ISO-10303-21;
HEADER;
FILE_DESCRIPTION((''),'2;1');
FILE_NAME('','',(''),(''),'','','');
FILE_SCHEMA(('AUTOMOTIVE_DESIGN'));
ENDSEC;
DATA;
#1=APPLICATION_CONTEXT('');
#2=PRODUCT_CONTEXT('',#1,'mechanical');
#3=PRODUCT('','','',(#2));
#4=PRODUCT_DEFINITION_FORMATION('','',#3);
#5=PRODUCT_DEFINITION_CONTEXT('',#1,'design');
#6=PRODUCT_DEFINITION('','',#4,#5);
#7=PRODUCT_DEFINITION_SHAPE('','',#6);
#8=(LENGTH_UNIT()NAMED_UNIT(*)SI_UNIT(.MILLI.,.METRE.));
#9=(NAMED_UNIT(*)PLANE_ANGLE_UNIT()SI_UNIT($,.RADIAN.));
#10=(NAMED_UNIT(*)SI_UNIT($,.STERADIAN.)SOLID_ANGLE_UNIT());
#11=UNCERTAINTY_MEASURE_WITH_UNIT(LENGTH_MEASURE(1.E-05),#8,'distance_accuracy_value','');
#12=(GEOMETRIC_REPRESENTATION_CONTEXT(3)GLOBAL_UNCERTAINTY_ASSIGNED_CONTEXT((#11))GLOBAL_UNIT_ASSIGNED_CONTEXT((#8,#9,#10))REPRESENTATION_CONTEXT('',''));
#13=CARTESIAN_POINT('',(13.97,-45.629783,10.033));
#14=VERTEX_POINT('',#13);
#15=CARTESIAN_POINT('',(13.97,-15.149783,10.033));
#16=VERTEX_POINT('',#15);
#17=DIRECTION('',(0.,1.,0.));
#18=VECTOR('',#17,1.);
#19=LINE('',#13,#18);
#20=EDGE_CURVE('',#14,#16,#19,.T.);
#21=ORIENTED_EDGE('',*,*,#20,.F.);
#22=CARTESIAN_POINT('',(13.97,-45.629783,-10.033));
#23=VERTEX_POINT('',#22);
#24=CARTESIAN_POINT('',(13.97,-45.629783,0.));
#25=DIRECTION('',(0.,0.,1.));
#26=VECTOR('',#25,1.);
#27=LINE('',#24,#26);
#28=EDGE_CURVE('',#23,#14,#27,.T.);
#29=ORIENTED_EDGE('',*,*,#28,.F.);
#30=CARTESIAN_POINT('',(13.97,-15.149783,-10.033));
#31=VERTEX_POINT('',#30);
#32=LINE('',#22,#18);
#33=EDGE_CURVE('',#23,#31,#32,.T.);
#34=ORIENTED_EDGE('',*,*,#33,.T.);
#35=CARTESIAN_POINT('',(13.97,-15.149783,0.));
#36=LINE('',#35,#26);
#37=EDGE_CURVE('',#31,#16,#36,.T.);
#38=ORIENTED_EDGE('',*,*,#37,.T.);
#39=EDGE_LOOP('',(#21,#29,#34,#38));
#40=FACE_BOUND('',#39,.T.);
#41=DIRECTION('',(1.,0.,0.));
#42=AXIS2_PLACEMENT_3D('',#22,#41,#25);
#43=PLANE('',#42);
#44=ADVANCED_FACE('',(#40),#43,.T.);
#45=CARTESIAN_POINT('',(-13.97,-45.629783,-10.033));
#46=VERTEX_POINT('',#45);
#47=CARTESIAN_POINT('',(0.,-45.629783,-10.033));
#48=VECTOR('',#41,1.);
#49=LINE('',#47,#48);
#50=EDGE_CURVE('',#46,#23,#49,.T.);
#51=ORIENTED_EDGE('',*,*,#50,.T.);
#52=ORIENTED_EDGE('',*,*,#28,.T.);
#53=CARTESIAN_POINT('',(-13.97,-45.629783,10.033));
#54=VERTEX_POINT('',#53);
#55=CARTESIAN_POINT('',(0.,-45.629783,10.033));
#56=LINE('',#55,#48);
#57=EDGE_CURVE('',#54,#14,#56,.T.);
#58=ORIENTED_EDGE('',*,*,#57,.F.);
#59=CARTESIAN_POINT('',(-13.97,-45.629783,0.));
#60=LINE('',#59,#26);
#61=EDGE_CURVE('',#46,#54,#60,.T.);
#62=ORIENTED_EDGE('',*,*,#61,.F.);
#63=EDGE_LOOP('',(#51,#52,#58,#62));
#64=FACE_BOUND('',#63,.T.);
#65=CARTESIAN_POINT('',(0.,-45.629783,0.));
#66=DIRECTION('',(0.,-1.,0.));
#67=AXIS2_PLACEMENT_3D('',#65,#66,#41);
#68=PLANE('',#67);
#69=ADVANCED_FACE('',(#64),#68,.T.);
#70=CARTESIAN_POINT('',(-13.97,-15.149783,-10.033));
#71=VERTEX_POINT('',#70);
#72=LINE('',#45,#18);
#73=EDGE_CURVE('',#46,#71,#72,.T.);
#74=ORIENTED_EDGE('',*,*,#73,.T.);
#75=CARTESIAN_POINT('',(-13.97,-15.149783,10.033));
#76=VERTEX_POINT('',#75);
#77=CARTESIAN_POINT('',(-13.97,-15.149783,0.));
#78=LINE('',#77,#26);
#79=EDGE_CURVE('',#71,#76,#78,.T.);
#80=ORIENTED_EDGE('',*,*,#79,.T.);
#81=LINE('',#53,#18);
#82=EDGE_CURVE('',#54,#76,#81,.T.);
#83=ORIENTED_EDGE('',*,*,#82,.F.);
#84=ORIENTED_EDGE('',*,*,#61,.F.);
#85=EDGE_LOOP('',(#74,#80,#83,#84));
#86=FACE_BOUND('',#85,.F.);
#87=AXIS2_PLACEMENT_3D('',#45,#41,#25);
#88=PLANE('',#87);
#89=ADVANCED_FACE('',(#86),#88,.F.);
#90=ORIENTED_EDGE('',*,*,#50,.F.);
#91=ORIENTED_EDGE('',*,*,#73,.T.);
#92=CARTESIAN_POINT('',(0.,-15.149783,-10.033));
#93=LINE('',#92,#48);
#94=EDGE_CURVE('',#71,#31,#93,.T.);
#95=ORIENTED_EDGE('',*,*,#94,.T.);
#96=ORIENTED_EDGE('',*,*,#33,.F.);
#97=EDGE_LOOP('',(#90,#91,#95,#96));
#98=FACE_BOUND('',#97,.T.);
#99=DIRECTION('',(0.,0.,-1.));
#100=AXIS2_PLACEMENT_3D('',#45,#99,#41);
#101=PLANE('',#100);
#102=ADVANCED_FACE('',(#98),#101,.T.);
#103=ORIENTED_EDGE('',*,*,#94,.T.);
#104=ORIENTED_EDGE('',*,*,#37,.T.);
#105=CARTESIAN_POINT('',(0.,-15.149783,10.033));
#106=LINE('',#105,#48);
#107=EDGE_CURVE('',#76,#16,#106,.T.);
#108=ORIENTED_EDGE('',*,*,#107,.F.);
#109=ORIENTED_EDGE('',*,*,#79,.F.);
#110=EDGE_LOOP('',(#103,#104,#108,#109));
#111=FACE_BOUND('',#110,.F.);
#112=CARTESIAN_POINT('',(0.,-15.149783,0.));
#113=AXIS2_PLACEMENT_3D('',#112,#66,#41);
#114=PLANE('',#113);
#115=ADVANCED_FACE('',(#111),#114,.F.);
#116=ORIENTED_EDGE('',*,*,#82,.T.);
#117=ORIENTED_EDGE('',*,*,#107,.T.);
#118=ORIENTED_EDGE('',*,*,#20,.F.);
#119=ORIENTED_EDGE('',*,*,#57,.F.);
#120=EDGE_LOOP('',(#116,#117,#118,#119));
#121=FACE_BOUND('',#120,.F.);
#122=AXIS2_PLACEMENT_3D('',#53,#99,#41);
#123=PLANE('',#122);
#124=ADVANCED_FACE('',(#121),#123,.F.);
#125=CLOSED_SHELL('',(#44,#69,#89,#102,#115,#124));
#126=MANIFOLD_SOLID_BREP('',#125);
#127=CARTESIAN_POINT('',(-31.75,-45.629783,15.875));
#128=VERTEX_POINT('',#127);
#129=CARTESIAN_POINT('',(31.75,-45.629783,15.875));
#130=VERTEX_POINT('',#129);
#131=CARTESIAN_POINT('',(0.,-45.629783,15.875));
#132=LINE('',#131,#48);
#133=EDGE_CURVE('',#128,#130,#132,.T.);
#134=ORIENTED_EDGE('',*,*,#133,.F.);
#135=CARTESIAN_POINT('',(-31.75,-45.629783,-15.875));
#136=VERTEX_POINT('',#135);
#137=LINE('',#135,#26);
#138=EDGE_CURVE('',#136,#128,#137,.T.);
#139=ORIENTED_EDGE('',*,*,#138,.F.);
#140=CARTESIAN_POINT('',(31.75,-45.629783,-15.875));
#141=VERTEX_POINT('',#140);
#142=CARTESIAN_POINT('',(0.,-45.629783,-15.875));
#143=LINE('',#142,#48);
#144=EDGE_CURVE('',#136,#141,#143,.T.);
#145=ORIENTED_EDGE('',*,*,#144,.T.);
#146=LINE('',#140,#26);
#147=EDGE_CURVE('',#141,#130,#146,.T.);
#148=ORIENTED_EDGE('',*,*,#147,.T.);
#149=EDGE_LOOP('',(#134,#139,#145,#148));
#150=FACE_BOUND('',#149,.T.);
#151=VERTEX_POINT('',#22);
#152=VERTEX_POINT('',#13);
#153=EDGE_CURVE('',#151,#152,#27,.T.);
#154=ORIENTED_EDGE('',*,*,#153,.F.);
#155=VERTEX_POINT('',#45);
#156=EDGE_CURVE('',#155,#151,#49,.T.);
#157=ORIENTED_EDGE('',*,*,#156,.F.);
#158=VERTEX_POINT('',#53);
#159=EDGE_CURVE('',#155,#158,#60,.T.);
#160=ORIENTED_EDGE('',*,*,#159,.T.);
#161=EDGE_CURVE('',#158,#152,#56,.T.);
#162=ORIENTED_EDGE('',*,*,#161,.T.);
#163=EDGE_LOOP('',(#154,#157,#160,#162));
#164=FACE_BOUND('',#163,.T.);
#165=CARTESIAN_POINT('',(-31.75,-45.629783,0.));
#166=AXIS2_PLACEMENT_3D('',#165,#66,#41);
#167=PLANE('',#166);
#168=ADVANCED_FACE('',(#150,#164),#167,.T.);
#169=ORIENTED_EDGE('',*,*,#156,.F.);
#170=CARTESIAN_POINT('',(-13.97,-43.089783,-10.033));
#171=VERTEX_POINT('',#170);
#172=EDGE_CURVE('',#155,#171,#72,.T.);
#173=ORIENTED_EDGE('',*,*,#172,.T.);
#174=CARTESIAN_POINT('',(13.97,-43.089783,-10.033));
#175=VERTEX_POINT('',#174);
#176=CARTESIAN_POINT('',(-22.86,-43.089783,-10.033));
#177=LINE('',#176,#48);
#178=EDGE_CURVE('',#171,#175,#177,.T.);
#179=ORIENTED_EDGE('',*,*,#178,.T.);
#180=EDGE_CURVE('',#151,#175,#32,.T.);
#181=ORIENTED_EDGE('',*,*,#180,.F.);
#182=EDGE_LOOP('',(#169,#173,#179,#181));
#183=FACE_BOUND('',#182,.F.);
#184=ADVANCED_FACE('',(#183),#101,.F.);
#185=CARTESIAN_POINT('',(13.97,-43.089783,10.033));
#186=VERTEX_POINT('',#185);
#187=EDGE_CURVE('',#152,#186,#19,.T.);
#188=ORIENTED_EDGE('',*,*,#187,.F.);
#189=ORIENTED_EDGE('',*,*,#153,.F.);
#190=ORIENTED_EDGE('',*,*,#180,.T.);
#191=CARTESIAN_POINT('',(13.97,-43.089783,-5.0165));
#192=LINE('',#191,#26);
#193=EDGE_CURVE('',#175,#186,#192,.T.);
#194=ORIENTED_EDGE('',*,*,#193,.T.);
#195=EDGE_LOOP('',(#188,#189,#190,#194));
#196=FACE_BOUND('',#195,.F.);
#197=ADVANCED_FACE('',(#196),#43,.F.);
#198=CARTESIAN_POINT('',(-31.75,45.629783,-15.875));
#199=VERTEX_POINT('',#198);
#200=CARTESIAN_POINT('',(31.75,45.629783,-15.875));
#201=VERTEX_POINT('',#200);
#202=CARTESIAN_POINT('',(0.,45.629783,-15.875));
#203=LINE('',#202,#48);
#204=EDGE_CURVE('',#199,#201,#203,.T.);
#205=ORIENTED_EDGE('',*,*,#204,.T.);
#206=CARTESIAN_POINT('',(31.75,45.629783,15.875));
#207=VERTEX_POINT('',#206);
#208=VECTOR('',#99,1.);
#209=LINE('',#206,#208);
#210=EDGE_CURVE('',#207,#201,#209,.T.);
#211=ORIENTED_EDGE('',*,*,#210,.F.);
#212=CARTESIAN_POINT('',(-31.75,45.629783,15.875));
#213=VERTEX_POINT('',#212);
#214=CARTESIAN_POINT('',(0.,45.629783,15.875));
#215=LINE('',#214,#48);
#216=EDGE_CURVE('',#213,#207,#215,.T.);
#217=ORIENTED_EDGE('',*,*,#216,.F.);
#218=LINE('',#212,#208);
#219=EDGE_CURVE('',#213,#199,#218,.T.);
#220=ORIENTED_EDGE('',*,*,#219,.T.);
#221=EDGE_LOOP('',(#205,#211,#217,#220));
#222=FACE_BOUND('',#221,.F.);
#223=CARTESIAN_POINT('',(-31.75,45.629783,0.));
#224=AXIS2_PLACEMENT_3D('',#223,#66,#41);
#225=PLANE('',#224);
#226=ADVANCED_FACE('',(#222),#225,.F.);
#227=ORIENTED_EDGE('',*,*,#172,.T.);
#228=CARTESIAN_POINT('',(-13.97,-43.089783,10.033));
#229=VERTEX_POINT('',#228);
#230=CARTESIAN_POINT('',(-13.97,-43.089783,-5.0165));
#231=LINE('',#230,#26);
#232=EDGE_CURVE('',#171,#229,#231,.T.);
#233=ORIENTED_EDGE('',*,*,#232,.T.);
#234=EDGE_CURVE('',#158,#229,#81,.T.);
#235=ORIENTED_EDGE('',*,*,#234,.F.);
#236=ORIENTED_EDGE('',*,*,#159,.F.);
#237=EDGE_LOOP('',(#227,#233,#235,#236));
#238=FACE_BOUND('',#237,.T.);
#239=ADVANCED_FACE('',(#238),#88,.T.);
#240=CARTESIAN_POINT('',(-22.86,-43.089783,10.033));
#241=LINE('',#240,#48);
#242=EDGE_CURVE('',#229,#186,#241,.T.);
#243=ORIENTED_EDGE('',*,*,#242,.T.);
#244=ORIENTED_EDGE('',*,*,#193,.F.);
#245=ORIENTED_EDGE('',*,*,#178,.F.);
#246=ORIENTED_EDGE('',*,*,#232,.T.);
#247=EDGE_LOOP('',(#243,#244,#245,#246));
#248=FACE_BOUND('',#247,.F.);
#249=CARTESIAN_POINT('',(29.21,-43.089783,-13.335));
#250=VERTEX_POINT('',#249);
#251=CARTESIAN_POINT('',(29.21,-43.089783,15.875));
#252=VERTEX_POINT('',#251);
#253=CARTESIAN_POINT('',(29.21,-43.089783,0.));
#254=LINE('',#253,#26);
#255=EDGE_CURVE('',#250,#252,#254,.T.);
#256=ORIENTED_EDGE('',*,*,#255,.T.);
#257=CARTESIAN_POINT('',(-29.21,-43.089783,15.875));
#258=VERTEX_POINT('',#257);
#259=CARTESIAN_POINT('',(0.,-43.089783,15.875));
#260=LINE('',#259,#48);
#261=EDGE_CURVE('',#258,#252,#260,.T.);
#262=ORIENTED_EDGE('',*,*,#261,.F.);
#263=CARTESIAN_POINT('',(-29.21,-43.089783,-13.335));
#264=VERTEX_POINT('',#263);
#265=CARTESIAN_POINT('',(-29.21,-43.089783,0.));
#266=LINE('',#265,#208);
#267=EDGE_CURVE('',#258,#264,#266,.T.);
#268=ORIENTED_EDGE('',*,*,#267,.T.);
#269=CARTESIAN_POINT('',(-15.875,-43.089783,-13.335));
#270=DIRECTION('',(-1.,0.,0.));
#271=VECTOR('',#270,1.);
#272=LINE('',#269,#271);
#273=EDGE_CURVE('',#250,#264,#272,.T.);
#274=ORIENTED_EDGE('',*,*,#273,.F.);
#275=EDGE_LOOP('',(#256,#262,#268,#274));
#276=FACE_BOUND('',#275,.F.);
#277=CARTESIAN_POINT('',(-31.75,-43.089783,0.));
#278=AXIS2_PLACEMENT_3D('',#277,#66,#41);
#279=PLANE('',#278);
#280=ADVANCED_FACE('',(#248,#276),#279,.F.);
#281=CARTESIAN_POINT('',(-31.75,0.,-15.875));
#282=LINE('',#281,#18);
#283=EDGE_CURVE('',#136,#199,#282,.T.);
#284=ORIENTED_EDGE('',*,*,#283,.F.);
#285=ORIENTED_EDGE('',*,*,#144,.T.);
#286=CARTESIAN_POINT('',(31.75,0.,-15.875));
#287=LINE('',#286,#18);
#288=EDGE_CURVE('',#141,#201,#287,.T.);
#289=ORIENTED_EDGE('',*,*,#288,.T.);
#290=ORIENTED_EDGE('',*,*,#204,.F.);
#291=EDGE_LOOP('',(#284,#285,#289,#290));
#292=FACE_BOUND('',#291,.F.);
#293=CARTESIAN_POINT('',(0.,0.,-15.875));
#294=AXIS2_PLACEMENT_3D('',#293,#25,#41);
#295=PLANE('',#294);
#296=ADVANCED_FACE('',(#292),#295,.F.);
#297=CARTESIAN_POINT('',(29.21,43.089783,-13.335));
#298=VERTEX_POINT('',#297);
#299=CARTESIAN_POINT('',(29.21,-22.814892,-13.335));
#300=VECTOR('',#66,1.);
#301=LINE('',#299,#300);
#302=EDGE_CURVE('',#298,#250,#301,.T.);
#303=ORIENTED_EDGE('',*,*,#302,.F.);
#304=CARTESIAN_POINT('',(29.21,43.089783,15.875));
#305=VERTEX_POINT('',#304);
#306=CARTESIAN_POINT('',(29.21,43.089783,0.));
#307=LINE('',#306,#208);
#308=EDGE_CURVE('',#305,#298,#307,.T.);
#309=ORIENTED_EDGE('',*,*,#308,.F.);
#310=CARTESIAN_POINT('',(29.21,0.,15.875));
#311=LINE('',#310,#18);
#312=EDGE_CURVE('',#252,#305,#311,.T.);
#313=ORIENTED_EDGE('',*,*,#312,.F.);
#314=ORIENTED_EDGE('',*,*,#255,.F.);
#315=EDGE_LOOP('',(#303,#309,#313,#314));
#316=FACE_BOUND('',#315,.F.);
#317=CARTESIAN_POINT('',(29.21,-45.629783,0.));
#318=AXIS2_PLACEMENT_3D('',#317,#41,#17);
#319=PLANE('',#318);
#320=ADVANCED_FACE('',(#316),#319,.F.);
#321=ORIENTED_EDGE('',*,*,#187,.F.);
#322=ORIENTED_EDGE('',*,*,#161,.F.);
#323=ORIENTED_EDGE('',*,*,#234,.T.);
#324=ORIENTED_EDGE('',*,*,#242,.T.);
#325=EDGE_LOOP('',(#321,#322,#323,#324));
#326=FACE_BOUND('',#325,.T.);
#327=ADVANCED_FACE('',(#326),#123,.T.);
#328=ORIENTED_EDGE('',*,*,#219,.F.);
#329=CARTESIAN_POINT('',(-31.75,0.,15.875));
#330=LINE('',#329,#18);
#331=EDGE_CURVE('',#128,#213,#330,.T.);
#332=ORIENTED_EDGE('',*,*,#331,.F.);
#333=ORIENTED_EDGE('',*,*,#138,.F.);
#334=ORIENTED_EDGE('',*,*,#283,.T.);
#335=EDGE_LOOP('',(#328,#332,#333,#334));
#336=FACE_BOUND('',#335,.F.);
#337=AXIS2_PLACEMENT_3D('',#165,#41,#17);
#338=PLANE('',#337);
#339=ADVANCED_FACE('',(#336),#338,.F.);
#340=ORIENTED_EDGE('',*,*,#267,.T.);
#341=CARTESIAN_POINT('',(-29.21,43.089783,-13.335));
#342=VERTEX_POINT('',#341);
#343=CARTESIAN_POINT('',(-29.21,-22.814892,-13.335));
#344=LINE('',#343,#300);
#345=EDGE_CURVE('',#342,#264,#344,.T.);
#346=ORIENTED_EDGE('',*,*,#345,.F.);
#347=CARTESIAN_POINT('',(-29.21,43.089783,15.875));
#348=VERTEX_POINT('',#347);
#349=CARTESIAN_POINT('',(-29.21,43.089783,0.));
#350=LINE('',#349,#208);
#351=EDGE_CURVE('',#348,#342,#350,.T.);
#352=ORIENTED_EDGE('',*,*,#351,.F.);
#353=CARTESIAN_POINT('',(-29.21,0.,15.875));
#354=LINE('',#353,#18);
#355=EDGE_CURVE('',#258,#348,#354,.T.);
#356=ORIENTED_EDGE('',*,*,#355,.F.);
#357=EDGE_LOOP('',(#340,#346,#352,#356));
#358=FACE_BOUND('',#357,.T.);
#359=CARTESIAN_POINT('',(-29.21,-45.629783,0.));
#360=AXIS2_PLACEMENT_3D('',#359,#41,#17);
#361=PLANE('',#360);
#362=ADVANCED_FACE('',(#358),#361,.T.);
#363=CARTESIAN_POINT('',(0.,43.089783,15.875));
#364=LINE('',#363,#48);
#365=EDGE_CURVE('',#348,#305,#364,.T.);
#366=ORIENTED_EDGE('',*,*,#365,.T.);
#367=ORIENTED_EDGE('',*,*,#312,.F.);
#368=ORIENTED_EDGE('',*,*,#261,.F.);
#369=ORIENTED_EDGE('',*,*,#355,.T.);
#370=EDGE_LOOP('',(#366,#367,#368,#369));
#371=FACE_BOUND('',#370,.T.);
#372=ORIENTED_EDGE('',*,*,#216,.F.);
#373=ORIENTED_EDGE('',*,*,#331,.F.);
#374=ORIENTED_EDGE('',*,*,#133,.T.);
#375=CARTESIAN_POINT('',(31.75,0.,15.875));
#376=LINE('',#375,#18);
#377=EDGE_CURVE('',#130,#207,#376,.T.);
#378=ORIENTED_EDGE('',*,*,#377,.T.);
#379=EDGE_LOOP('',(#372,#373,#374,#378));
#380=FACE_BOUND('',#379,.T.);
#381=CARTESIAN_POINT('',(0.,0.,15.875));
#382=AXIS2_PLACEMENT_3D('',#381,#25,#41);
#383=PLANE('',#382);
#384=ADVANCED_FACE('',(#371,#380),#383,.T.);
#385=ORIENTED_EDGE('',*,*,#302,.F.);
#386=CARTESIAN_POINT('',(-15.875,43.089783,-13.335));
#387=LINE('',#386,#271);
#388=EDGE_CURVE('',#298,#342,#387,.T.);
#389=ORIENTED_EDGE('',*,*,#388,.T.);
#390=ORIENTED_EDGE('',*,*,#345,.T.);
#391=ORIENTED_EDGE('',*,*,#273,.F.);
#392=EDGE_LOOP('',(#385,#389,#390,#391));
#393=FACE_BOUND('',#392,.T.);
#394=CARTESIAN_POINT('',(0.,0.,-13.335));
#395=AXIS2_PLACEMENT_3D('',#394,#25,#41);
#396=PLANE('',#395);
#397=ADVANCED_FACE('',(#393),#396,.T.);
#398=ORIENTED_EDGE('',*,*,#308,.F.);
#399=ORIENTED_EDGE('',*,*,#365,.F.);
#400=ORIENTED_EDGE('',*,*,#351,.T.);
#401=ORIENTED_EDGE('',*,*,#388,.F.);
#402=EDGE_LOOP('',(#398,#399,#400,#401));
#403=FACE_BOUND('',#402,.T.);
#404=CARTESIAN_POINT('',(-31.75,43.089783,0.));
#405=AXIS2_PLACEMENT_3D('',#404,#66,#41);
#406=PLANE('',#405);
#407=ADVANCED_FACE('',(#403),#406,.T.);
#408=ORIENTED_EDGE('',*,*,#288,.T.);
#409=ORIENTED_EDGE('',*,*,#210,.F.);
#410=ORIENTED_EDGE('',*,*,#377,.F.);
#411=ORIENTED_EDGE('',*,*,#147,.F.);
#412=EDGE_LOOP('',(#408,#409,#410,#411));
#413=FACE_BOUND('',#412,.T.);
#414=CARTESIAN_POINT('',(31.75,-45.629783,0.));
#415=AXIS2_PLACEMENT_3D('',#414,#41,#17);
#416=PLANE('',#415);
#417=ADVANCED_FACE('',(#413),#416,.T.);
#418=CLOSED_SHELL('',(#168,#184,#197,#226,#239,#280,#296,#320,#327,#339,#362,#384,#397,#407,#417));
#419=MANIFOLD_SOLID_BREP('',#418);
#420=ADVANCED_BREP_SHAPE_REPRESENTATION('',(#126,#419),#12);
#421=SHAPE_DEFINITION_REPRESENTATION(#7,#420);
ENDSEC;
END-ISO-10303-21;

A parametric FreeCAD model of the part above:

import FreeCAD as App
import Part
import Sketcher
from FreeCAD import Vector
Q = App.Units.Quantity


def faces_at(feature, points):
    """Names of the faces that lie closest to the given points."""
    faces = feature.Shape.Faces
    near = lambda p: min(range(len(faces)), key=lambda i: faces[i].distToShape(Part.Vertex(*p))[0])
    return sorted({f"Face{near(p) + 1}" for p in points})

doc = App.newDocument("Part")
body = doc.addObject("PartDesign::Body", "Body")

sketch1 = body.newObject("Sketcher::SketchObject", "Sketch")
sketch1.AttachmentSupport = (doc.getObject("XY_Plane"), [""])
sketch1.MapMode = "FlatFace"
sketch1.addGeometry([
    Part.LineSegment(Vector(-32, 46, 0), Vector(-32, -46, 0)),
    Part.LineSegment(Vector(-32, -46, 0), Vector(32, -46, 0)),
    Part.LineSegment(Vector(32, -46, 0), Vector(32, 46, 0)),
    Part.LineSegment(Vector(32, 46, 0), Vector(-32, 46, 0)),
], False)
sketch1.addConstraint([
    Sketcher.Constraint("Coincident", 0, 2, 1, 1),
    Sketcher.Constraint("Coincident", 1, 2, 2, 1),
    Sketcher.Constraint("Coincident", 2, 2, 3, 1),
    Sketcher.Constraint("Coincident", 3, 2, 0, 1),
    Sketcher.Constraint("Vertical", 0),
    Sketcher.Constraint("Horizontal", 1),
    Sketcher.Constraint("Vertical", 2),
    Sketcher.Constraint("Horizontal", 3),
    Sketcher.Constraint("Symmetric", 0, 2, 2, 2, -1, 1),
    Sketcher.Constraint("DistanceX", 1, 1, 1, 2, Q("2.5 in")),
    Sketcher.Constraint("DistanceY", 0, 2, 0, 1, 91.259566),
])
pad1 = body.newObject("PartDesign::Pad", "Pad")
pad1.Profile = sketch1
pad1.Length = Q("1.25 in")
pad1.Midplane = True
doc.recompute()

thickness = body.newObject("PartDesign::Thickness", "Thickness")
thickness.Base = (pad1, faces_at(pad1, [(0, 0, 15.875)]))
thickness.Value = Q("0.1 in")
thickness.Reversed = True
thickness.Join = "Arc"

sketch2 = body.newObject("Sketcher::SketchObject", "Sketch001")
sketch2.AttachmentSupport = (doc.getObject("XZ_Plane"), [""])
sketch2.MapMode = "FlatFace"
sketch2.AttachmentOffset = App.Placement(Vector(0, 0, 45.629783), App.Rotation())
sketch2.addGeometry([
    Part.LineSegment(Vector(-14, 10, 0), Vector(-14, -10, 0)),
    Part.LineSegment(Vector(-14, -10, 0), Vector(14, -10, 0)),
    Part.LineSegment(Vector(14, -10, 0), Vector(14, 10, 0)),
    Part.LineSegment(Vector(14, 10, 0), Vector(-14, 10, 0)),
], False)
sketch2.addConstraint([
    Sketcher.Constraint("Coincident", 0, 2, 1, 1),
    Sketcher.Constraint("Coincident", 1, 2, 2, 1),
    Sketcher.Constraint("Coincident", 2, 2, 3, 1),
    Sketcher.Constraint("Coincident", 3, 2, 0, 1),
    Sketcher.Constraint("Vertical", 0),
    Sketcher.Constraint("Horizontal", 1),
    Sketcher.Constraint("Vertical", 2),
    Sketcher.Constraint("Horizontal", 3),
    Sketcher.Constraint("Symmetric", 0, 2, 2, 2, -1, 1),
    Sketcher.Constraint("DistanceX", 1, 1, 1, 2, Q("1.1 in")),
    Sketcher.Constraint("DistanceY", 0, 2, 0, 1, Q("0.79 in")),
])
pocket1 = body.newObject("PartDesign::Pocket", "Pocket")
pocket1.Profile = sketch2
pocket1.Length = Q("0.25 in")
body2 = doc.addObject("PartDesign::Body", "Body001")

sketch3 = body2.newObject("Sketcher::SketchObject", "Sketch002")
sketch3.AttachmentSupport = (doc.getObject("XZ_Plane001"), [""])
sketch3.MapMode = "FlatFace"
sketch3.AttachmentOffset = App.Placement(Vector(0, 0, 45.629783), App.Rotation())
sketch3.addGeometry([
    Part.LineSegment(Vector(-14, 10, 0), Vector(-14, -10, 0)),
    Part.LineSegment(Vector(-14, -10, 0), Vector(14, -10, 0)),
    Part.LineSegment(Vector(14, -10, 0), Vector(14, 10, 0)),
    Part.LineSegment(Vector(14, 10, 0), Vector(-14, 10, 0)),
], False)
sketch3.addConstraint([
    Sketcher.Constraint("Coincident", 0, 2, 1, 1),
    Sketcher.Constraint("Coincident", 1, 2, 2, 1),
    Sketcher.Constraint("Coincident", 2, 2, 3, 1),
    Sketcher.Constraint("Coincident", 3, 2, 0, 1),
    Sketcher.Constraint("Vertical", 0),
    Sketcher.Constraint("Horizontal", 1),
    Sketcher.Constraint("Vertical", 2),
    Sketcher.Constraint("Horizontal", 3),
    Sketcher.Constraint("Symmetric", 0, 2, 2, 2, -1, 1),
    Sketcher.Constraint("DistanceX", 1, 1, 1, 2, Q("1.1 in")),
    Sketcher.Constraint("DistanceY", 0, 2, 0, 1, Q("0.79 in")),
])
pad2 = body2.newObject("PartDesign::Pad", "Pad001")
pad2.Profile = sketch3
pad2.Length = Q("1.2 in")
pad2.Reversed = True

doc.recompute()
